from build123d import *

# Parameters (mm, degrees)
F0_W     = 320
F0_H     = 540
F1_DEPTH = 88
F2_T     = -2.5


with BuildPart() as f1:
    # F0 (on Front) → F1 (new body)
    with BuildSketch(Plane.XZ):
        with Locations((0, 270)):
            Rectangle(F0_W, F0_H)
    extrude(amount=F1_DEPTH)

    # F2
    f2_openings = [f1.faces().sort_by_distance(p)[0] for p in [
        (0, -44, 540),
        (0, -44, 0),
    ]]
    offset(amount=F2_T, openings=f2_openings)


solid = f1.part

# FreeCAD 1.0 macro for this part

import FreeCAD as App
import Part
import Sketcher

V = App.Vector
Q = App.Units.Quantity


def faces_at(feature, points):
    """Names of the faces that lie closest to the given points."""
    faces = feature.Shape.Faces
    near = lambda p: min(range(len(faces)), key=lambda i: faces[i].distToShape(Part.Vertex(*p))[0])
    return sorted({f"Face{near(p) + 1}" for p in points})

doc = App.newDocument("Part")
params = doc.addObject("Spreadsheet::Sheet", "Params")
for row, (alias, value) in enumerate([
    ("sketch1_width", "320 mm"),
    ("sketch1_height", "540 mm"),
    ("pad1_length", "88 mm"),
    ("thickness_wall", "2.5 mm"),
], start=1):
    params.set(f"A{row}", alias)
    params.set(f"B{row}", "=" + value)
    params.setAlias(f"B{row}", alias)

body = doc.addObject("PartDesign::Body", "Body")

# Sketch on XZ plane
sketch1 = doc.addObject("Sketcher::SketchObject", "Sketch")
body.addObject(sketch1)
sketch1.AttachmentSupport = (doc.XZ_Plane, [""])
sketch1.MapMode = "FlatFace"
sketch1.addGeometry([
    Part.LineSegment(V(-160, 540, 0), V(-160, 0, 0)),
    Part.LineSegment(V(-160, 0, 0), V(160, 0, 0)),
    Part.LineSegment(V(160, 0, 0), V(160, 540, 0)),
    Part.LineSegment(V(160, 540, 0), V(-160, 540, 0)),
], False)
sketch1.addConstraint([
    Sketcher.Constraint("Coincident", 0, 2, 1, 1),
    Sketcher.Constraint("Coincident", 1, 2, 2, 1),
    Sketcher.Constraint("Coincident", 2, 2, 3, 1),
    Sketcher.Constraint("Coincident", 3, 2, 0, 1),
    Sketcher.Constraint("Vertical", 0),
    Sketcher.Constraint("Horizontal", 1),
    Sketcher.Constraint("Vertical", 2),
    Sketcher.Constraint("Horizontal", 3),
    Sketcher.Constraint("Symmetric", 0, 2, 1, 2, -1, 1),
    Sketcher.Constraint("DistanceX", 1, 1, 1, 2, Q("320 mm")),
    Sketcher.Constraint("DistanceY", 0, 2, 0, 1, Q("540 mm")),
])
sketch1.setExpression("Constraints[9]", "Params.sketch1_width")
sketch1.setExpression("Constraints[10]", "Params.sketch1_height")
pad1 = doc.addObject("PartDesign::Pad", "Pad")
body.addObject(pad1)
pad1.Profile = sketch1
pad1.setExpression("Length", "Params.pad1_length")
doc.recompute()

thickness = doc.addObject("PartDesign::Thickness", "Thickness")
body.addObject(thickness)
thickness.Base = (pad1, faces_at(pad1, [(0, -44, 540), (0, -44, 0)]))
thickness.setExpression("Value", "Params.thickness_wall")
thickness.Reversed = True
thickness.Join = "Arc"

doc.recompute()
